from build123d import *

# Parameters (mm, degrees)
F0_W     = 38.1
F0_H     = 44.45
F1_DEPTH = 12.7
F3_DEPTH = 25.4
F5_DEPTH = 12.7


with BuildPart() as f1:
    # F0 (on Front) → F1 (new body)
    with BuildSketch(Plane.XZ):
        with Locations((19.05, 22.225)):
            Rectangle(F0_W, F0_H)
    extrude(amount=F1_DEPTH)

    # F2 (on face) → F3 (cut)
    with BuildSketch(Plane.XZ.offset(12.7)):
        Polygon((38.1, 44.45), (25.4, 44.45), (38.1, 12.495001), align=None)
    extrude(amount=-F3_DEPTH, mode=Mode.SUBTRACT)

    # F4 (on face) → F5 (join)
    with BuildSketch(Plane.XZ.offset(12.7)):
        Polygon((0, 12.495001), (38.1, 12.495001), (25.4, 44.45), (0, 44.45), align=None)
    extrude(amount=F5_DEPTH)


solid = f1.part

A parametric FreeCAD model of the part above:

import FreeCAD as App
import Part
import Sketcher

V = App.Vector
Q = App.Units.Quantity

doc = App.newDocument("Part")
body = doc.addObject("PartDesign::Body", "Body")

# Sketch on XZ plane
sketch1 = body.newObject("Sketcher::SketchObject", "Sketch")
sketch1.AttachmentSupport = (doc.getObject("XZ_Plane"), [""])
sketch1.MapMode = "FlatFace"
sketch1.addGeometry(Part.LineSegment(V(0, 44, 0), V(0, 0, 0)), False)
sketch1.addGeometry(Part.LineSegment(V(0, 0, 0), V(38, 0, 0)), False)
sketch1.addGeometry(Part.LineSegment(V(38, 0, 0), V(38, 44, 0)), False)
sketch1.addGeometry(Part.LineSegment(V(38, 44, 0), V(0, 44, 0)), False)
sketch1.addConstraint(Sketcher.Constraint("Coincident", 0, 2, 1, 1))
sketch1.addConstraint(Sketcher.Constraint("Coincident", 1, 2, 2, 1))
sketch1.addConstraint(Sketcher.Constraint("Coincident", 2, 2, 3, 1))
sketch1.addConstraint(Sketcher.Constraint("Coincident", 3, 2, 0, 1))
sketch1.addConstraint(Sketcher.Constraint("Vertical", 0))
sketch1.addConstraint(Sketcher.Constraint("Horizontal", 1))
sketch1.addConstraint(Sketcher.Constraint("Vertical", 2))
sketch1.addConstraint(Sketcher.Constraint("Horizontal", 3))
sketch1.addConstraint(Sketcher.Constraint("Coincident", 0, 2, -1, 1))
sketch1.addConstraint(Sketcher.Constraint("DistanceX", 1, 1, 1, 2, Q("1.5 in")))
sketch1.addConstraint(Sketcher.Constraint("DistanceY", 0, 2, 0, 1, Q("1.75 in")))
pad1 = body.newObject("PartDesign::Pad", "Pad")
pad1.Profile = sketch1
pad1.Length = Q("0.5 in")

# Sketch on XZ plane
sketch2 = body.newObject("Sketcher::SketchObject", "Sketch001")
sketch2.AttachmentSupport = (doc.getObject("XZ_Plane"), [""])
sketch2.MapMode = "FlatFace"
sketch2.AttachmentOffset = App.Placement(V(0, 0, 0.5 * 25.4), App.Rotation())
sketch2.addGeometry(Part.LineSegment(V(38, 44, 0), V(25, 44, 0)), False)
sketch2.addGeometry(Part.LineSegment(V(25, 44, 0), V(38, 12, 0)), False)
sketch2.addGeometry(Part.LineSegment(V(38, 12, 0), V(38, 44, 0)), False)
sketch2.addConstraint(Sketcher.Constraint("Coincident", 0, 2, 1, 1))
sketch2.addConstraint(Sketcher.Constraint("Coincident", 1, 2, 2, 1))
sketch2.addConstraint(Sketcher.Constraint("Coincident", 2, 2, 0, 1))
sketch2.addConstraint(Sketcher.Constraint("Horizontal", 0))
sketch2.addConstraint(Sketcher.Constraint("Vertical", 2))
sketch2.addConstraint(Sketcher.Constraint("DistanceX", 0, 2, 0, 1, Q("0.5 in")))
sketch2.addConstraint(Sketcher.Constraint("DistanceX", -1, 1, 0, 2, Q("1 in")))
sketch2.addConstraint(Sketcher.Constraint("DistanceY", -1, 1, 0, 2, Q("1.75 in")))
sketch2.addConstraint(Sketcher.Constraint("DistanceY", 2, 1, 2, 2, Q("31.954999 mm")))
pocket1 = body.newObject("PartDesign::Pocket", "Pocket")
pocket1.Profile = sketch2
pocket1.Length = Q("1 in")

# Sketch on XZ plane
sketch3 = body.newObject("Sketcher::SketchObject", "Sketch002")
sketch3.AttachmentSupport = (doc.getObject("XZ_Plane"), [""])
sketch3.MapMode = "FlatFace"
sketch3.AttachmentOffset = App.Placement(V(0, 0, 0.5 * 25.4), App.Rotation())
sketch3.addGeometry(Part.LineSegment(V(0, 12, 0), V(38, 12, 0)), False)
sketch3.addGeometry(Part.LineSegment(V(38, 12, 0), V(25, 44, 0)), False)
sketch3.addGeometry(Part.LineSegment(V(25, 44, 0), V(0, 44, 0)), False)
sketch3.addGeometry(Part.LineSegment(V(0, 44, 0), V(0, 12, 0)), False)
sketch3.addConstraint(Sketcher.Constraint("Coincident", 0, 2, 1, 1))
sketch3.addConstraint(Sketcher.Constraint("Coincident", 1, 2, 2, 1))
sketch3.addConstraint(Sketcher.Constraint("Coincident", 2, 2, 3, 1))
sketch3.addConstraint(Sketcher.Constraint("Coincident", 3, 2, 0, 1))
sketch3.addConstraint(Sketcher.Constraint("Horizontal", 0))
sketch3.addConstraint(Sketcher.Constraint("Horizontal", 2))
sketch3.addConstraint(Sketcher.Constraint("Vertical", 3))
sketch3.addConstraint(Sketcher.Constraint("PointOnObject", 2, 2, -2))
sketch3.addConstraint(Sketcher.Constraint("DistanceX", 2, 2, 2, 1, Q("1 in")))
sketch3.addConstraint(Sketcher.Constraint("DistanceX", 0, 1, 0, 2, Q("1.5 in")))
sketch3.addConstraint(Sketcher.Constraint("DistanceY", -1, 1, 1, 2, Q("1.75 in")))
sketch3.addConstraint(Sketcher.Constraint("DistanceY", 3, 2, 3, 1, Q("31.954999 mm")))
pad2 = body.newObject("PartDesign::Pad", "Pad001")
pad2.Profile = sketch3
pad2.Length = Q("0.5 in")

doc.recompute()
